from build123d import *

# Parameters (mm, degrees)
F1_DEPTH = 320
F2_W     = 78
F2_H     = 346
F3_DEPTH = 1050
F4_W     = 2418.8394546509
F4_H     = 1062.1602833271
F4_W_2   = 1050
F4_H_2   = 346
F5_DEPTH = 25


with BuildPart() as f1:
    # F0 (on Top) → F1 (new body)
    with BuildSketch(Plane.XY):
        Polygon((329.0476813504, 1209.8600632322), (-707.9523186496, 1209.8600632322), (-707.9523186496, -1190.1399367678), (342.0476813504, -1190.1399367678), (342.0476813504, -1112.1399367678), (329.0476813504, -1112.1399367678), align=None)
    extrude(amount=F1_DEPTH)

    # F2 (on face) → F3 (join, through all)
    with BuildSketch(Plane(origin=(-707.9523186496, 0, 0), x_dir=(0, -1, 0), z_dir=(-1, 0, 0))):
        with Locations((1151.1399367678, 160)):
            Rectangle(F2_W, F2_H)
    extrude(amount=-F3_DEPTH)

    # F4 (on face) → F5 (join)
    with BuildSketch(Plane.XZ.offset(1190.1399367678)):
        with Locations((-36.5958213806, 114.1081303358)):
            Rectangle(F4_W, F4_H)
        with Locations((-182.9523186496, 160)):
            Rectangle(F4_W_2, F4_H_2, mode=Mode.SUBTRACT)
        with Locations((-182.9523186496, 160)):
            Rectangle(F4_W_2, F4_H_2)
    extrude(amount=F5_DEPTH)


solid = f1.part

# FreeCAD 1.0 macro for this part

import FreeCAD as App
import Part
import Sketcher
from FreeCAD import Vector


def add_polygon(sketch, points):
    """Adds a closed chain of lines whose ends are joined by coincident constraints."""
    first, n = sketch.GeometryCount, len(points)
    for a, b in zip(points, points[1:] + points[:1]):
        sketch.addGeometry(Part.LineSegment(App.Vector(*a, 0), App.Vector(*b, 0)), False)
    for i in range(n):
        sketch.addConstraint(Sketcher.Constraint("Coincident", first + i, 2, first + (i + 1) % n, 1))

doc = App.newDocument("Part")
params = doc.addObject("Spreadsheet::Sheet", "Params")
for row, (alias, value) in enumerate([
    ("sketch1_width", "1037 mm"),
    ("sketch1_width2", "1050 mm"),
    ("sketch1_height", "2400 mm"),
    ("sketch1_height2", "78 mm"),
    ("pad1_length", "320 mm"),
    ("sketch2_width", "78 mm"),
    ("sketch2_height", "346 mm"),
    ("pad3_length", "25 mm"),
], start=1):
    params.set(f"A{row}", alias)
    params.set(f"B{row}", "=" + value)
    params.setAlias(f"B{row}", alias)

body = doc.addObject("PartDesign::Body", "Body")

# Sketch on XY plane
sketch1 = body.newObject("Sketcher::SketchObject", "Sketch")
sketch1.AttachmentSupport = (doc.getObject("XY_Plane"), [""])
sketch1.MapMode = "FlatFace"
add_polygon(sketch1, [(329, 1210), (-708, 1210), (-708, -1190), (342, -1190), (342, -1112), (329, -1112)])  # lines 0-5
sketch1.addConstraint(Sketcher.Constraint("Horizontal", 0))
sketch1.addConstraint(Sketcher.Constraint("Vertical", 1))
sketch1.addConstraint(Sketcher.Constraint("Horizontal", 2))
sketch1.addConstraint(Sketcher.Constraint("Vertical", 3))
sketch1.addConstraint(Sketcher.Constraint("Horizontal", 4))
sketch1.addConstraint(Sketcher.Constraint("Vertical", 5))
sketch1.addConstraint(Sketcher.Constraint("DistanceX", 0, 2, 0, 1, 1037.0))
sketch1.addConstraint(Sketcher.Constraint("DistanceX", 2, 1, 2, 2, 1050.0))
sketch1.addConstraint(Sketcher.Constraint("DistanceY", 1, 2, 1, 1, 2400.0))
sketch1.addConstraint(Sketcher.Constraint("DistanceY", 3, 1, 3, 2, 78.0))
sketch1.addConstraint(Sketcher.Constraint("DistanceX", 0, 2, -1, 1, 707.952319))
sketch1.addConstraint(Sketcher.Constraint("DistanceY", -1, 1, 0, 2, 1209.860063))
sketch1.setExpression("Constraints[12]", "Params.sketch1_width")
sketch1.setExpression("Constraints[13]", "Params.sketch1_width2")
sketch1.setExpression("Constraints[14]", "Params.sketch1_height")
sketch1.setExpression("Constraints[15]", "Params.sketch1_height2")
pad1 = body.newObject("PartDesign::Pad", "Pad")
pad1.Profile = sketch1
pad1.setExpression("Length", "Params.pad1_length")

# Sketch on YZ plane
sketch2 = body.newObject("Sketcher::SketchObject", "Sketch001")
sketch2.AttachmentSupport = (doc.getObject("YZ_Plane"), [""])
sketch2.MapMode = "FlatFace"
sketch2.AttachmentOffset = App.Placement(Vector(0, 0, -707.952319), App.Rotation())
add_polygon(sketch2, [(-1112, 333), (-1112, -13), (-1190, -13), (-1190, 333)])  # lines 0-3
sketch2.addConstraint(Sketcher.Constraint("Vertical", 0))
sketch2.addConstraint(Sketcher.Constraint("Horizontal", 1))
sketch2.addConstraint(Sketcher.Constraint("Vertical", 2))
sketch2.addConstraint(Sketcher.Constraint("Horizontal", 3))
sketch2.addConstraint(Sketcher.Constraint("DistanceX", 1, 2, 1, 1, 78.0))
sketch2.addConstraint(Sketcher.Constraint("DistanceY", 0, 2, 0, 1, 346.0))
sketch2.addConstraint(Sketcher.Constraint("DistanceY", 0, 2, -1, 1, 13.0))
sketch2.addConstraint(Sketcher.Constraint("DistanceX", 0, 2, -1, 1, 1112.139937))
sketch2.setExpression("Constraints[8]", "Params.sketch2_width")
sketch2.setExpression("Constraints[9]", "Params.sketch2_height")
pad2 = body.newObject("PartDesign::Pad", "Pad001")
pad2.Profile = sketch2
pad2.Type = "UpToLast"

# Sketch on XZ plane
sketch3 = body.newObject("Sketcher::SketchObject", "Sketch002")
sketch3.AttachmentSupport = (doc.getObject("XZ_Plane"), [""])
sketch3.MapMode = "FlatFace"
sketch3.AttachmentOffset = App.Placement(Vector(0, 0, 1190.139937), App.Rotation())
add_polygon(sketch3, [(-1246, 645), (-1246, -417), (1173, -417), (1173, 645)])  # lines 0-3
sketch3.addConstraint(Sketcher.Constraint("Vertical", 0))
sketch3.addConstraint(Sketcher.Constraint("Horizontal", 1))
sketch3.addConstraint(Sketcher.Constraint("Vertical", 2))
sketch3.addConstraint(Sketcher.Constraint("Horizontal", 3))
sketch3.addConstraint(Sketcher.Constraint("DistanceX", 1, 1, 1, 2, 2418.839455))
sketch3.addConstraint(Sketcher.Constraint("DistanceY", 0, 2, 0, 1, 1062.160283))
sketch3.addConstraint(Sketcher.Constraint("DistanceX", 0, 2, -1, 1, 1246.015549))
sketch3.addConstraint(Sketcher.Constraint("DistanceY", 0, 2, -1, 1, 416.972011))
pad3 = body.newObject("PartDesign::Pad", "Pad002")
pad3.Profile = sketch3
pad3.setExpression("Length", "Params.pad3_length")

doc.recompute()
